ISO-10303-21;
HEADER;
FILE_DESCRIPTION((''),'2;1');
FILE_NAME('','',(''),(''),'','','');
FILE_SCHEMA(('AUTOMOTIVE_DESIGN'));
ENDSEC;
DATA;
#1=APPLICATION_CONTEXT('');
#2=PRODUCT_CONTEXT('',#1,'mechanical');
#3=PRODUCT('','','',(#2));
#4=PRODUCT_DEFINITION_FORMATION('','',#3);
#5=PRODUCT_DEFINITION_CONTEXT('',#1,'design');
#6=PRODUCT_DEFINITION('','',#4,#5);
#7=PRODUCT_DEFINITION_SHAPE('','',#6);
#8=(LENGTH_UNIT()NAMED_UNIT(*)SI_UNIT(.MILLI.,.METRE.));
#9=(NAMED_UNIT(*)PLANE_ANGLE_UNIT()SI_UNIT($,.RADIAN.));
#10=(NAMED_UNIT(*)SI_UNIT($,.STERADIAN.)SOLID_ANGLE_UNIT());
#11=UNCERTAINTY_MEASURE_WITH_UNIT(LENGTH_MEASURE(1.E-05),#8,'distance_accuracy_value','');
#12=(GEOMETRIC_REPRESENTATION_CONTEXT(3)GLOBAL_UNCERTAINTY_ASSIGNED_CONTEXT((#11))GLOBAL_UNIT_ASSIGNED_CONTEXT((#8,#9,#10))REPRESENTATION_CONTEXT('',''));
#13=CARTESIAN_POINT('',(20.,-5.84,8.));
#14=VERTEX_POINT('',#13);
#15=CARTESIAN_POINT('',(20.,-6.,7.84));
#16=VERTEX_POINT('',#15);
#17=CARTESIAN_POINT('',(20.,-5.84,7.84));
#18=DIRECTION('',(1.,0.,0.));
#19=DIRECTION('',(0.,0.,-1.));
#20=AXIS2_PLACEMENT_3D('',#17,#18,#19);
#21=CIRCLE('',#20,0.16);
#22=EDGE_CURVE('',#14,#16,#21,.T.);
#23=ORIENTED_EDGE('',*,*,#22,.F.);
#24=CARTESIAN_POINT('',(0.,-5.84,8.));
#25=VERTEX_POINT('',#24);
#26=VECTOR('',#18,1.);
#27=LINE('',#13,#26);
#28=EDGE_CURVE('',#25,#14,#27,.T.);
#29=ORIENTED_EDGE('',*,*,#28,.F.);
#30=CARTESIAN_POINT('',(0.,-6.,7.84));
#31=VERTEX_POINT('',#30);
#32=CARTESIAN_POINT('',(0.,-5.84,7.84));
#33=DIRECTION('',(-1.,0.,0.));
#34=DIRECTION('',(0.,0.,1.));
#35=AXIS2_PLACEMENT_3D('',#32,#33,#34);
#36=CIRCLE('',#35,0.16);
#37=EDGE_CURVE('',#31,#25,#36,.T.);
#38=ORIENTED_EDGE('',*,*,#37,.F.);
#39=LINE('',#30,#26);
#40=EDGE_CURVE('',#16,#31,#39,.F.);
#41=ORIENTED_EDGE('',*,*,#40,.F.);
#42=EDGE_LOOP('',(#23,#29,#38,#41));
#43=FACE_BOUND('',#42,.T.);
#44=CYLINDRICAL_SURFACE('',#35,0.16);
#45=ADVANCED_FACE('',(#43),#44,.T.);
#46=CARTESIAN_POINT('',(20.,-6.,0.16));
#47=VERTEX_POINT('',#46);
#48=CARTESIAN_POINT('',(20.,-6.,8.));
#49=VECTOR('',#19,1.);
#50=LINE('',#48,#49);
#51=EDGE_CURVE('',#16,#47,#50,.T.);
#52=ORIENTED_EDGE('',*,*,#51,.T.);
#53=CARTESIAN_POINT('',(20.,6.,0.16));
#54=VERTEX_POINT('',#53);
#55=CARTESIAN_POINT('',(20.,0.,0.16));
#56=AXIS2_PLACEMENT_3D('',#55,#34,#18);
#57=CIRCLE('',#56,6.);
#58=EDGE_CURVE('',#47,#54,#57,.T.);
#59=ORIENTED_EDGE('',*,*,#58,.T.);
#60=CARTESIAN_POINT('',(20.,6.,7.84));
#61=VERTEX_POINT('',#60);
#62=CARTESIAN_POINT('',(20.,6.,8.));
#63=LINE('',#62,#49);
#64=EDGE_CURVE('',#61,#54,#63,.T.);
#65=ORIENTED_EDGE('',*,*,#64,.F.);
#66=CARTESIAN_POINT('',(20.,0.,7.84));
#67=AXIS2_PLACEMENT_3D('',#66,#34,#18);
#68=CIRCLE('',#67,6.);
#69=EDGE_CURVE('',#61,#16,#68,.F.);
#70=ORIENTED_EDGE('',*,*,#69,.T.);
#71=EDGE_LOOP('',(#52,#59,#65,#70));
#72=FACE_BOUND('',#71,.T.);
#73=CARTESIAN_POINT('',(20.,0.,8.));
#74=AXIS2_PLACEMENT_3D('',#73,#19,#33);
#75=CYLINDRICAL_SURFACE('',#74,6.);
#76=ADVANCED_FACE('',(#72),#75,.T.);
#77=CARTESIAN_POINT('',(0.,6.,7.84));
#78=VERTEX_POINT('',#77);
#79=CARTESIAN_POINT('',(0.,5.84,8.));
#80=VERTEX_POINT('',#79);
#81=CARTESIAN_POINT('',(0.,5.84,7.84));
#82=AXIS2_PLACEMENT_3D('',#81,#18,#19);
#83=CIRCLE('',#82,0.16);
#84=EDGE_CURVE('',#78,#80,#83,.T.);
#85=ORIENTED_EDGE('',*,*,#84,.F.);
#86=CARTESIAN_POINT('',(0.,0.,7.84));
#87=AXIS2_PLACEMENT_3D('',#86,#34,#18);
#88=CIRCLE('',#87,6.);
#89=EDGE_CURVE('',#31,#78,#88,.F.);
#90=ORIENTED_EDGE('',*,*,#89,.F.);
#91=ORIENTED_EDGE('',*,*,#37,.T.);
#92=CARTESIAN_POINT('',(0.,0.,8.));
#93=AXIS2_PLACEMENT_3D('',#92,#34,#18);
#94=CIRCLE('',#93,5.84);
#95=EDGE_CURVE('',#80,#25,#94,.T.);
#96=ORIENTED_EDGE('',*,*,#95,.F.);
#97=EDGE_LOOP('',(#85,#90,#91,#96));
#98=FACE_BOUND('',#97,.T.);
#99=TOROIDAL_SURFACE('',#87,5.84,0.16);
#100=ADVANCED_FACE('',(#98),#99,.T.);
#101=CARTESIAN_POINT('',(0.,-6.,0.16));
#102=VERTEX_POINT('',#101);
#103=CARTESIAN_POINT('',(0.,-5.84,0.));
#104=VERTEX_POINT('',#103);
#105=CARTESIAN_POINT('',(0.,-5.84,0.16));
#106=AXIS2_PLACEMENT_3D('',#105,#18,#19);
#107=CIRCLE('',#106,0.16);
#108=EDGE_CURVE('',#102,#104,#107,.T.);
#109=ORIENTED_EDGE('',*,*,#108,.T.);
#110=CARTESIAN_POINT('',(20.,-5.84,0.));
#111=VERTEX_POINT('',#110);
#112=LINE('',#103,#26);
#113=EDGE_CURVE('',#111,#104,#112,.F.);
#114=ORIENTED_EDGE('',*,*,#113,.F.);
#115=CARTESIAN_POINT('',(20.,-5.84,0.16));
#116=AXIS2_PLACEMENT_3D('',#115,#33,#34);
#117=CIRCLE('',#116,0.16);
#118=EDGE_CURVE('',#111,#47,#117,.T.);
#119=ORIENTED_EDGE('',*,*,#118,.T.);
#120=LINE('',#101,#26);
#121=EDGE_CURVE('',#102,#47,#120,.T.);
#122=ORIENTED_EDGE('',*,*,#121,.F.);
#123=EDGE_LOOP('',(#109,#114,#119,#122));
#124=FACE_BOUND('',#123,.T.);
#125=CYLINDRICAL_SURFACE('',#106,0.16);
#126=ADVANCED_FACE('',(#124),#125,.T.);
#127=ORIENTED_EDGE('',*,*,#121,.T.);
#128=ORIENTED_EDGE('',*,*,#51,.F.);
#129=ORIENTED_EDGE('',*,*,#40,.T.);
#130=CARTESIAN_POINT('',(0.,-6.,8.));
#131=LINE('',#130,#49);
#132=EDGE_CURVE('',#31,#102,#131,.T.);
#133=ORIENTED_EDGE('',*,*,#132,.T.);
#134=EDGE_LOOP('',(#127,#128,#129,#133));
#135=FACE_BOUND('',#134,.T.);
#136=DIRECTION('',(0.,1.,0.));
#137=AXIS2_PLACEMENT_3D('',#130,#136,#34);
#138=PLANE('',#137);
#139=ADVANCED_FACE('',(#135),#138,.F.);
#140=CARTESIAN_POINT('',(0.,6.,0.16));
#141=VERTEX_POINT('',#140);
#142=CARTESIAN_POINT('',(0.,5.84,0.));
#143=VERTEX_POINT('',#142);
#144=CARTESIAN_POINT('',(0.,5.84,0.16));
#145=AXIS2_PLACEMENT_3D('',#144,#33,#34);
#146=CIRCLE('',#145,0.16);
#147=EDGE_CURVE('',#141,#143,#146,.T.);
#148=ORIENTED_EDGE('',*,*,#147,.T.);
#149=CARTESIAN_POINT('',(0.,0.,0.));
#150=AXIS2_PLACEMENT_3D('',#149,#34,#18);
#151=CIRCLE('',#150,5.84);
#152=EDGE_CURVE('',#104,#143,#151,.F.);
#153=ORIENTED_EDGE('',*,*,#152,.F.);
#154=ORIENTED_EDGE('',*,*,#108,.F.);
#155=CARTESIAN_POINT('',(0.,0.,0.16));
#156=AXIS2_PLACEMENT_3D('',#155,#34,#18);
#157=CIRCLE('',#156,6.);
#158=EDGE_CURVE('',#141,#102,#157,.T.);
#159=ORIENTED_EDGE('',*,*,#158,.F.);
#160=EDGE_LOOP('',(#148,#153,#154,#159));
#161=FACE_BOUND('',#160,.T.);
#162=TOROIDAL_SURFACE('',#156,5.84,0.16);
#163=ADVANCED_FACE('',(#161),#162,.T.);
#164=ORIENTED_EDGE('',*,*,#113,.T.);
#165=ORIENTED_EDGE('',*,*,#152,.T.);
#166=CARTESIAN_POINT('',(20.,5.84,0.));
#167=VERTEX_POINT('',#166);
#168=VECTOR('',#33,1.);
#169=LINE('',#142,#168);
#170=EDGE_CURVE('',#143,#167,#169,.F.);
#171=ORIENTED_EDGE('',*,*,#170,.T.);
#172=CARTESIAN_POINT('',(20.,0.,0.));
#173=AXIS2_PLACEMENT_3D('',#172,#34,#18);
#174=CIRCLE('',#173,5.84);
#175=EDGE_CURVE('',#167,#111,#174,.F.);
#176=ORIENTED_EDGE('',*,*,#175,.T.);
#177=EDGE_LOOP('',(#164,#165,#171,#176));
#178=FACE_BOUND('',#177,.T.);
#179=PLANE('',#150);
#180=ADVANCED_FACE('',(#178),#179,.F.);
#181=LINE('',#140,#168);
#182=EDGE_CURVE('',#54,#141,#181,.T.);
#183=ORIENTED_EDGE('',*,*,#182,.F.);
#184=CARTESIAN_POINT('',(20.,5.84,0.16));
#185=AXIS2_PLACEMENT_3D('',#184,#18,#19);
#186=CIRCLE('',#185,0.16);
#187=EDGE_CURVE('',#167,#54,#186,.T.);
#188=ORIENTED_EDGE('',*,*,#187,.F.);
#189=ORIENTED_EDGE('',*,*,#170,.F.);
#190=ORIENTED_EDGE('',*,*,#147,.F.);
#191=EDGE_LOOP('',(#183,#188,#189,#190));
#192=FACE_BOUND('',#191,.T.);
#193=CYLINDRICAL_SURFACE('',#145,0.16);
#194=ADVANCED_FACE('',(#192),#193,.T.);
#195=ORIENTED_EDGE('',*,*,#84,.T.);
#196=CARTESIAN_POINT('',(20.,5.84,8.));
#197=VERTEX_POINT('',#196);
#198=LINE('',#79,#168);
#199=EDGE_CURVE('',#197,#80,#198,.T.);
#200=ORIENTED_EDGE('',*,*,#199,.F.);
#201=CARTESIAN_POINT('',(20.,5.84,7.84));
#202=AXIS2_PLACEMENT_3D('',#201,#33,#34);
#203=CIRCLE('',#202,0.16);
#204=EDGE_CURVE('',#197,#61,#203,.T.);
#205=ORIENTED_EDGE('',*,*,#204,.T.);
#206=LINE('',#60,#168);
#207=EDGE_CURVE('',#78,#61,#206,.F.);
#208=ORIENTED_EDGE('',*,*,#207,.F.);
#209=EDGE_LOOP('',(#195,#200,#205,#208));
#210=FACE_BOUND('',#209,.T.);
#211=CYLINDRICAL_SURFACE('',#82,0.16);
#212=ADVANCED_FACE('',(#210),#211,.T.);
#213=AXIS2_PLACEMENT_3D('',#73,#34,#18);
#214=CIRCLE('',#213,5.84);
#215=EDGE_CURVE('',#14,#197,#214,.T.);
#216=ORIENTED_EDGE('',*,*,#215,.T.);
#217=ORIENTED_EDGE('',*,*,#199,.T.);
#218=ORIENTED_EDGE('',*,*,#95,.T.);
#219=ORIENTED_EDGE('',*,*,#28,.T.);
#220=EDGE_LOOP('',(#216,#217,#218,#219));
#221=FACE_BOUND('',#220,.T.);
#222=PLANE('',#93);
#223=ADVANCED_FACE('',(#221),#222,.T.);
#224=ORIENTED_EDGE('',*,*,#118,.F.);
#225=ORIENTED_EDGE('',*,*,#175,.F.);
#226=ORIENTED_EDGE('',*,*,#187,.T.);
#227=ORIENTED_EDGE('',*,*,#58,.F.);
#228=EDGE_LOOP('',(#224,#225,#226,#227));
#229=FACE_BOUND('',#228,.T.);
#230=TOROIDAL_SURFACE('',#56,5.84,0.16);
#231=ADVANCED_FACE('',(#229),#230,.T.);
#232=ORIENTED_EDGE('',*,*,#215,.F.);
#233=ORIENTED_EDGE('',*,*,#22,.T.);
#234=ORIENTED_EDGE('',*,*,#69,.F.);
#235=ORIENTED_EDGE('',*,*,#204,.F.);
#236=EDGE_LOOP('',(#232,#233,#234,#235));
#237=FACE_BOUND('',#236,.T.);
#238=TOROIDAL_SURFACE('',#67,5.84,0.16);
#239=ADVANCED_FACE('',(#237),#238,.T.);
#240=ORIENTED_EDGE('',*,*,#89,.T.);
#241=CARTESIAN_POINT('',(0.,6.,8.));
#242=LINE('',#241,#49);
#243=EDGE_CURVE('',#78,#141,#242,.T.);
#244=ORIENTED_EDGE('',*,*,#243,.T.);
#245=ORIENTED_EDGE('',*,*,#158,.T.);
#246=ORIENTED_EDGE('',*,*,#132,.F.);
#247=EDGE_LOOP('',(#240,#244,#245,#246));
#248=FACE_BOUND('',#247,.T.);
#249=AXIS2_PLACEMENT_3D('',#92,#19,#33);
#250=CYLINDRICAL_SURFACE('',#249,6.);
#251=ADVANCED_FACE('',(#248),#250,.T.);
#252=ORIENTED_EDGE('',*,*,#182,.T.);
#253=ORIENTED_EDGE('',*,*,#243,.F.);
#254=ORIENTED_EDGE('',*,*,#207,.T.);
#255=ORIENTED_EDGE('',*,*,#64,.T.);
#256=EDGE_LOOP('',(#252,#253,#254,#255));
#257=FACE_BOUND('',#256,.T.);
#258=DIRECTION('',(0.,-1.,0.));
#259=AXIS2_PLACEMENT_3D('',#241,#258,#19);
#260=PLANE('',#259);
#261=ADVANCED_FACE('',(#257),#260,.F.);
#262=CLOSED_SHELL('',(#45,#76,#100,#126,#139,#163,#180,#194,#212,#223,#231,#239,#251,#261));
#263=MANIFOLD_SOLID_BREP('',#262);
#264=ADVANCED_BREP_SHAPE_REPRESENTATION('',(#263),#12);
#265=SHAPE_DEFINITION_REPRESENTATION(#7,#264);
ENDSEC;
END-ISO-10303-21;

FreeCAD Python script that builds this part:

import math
import FreeCAD as App
import Part
import Sketcher
Q = App.Units.Quantity


def edges_at(feature, points):
    """Names of the edges that pass closest to the given points."""
    edges = feature.Shape.Edges
    near = lambda p: min(range(len(edges)), key=lambda i: edges[i].distToShape(Part.Vertex(*p))[0])
    return sorted({f"Edge{near(p) + 1}" for p in points})

doc = App.newDocument("Part")
body = doc.addObject("PartDesign::Body", "Body")

sketch1 = body.newObject("Sketcher::SketchObject", "Sketch")
sketch1.AttachmentSupport = (doc.getObject("XY_Plane"), [""])
sketch1.MapMode = "FlatFace"
sketch1.addGeometry([
    Part.LineSegment(App.Vector(20, 6, 0), App.Vector(0, 6, 0)),
    Part.ArcOfCircle(Part.Circle(App.Vector(0, 0, 0), App.Vector(0, 0, 1), 6), math.radians(90), math.radians(270)),
    Part.LineSegment(App.Vector(0, -6, 0), App.Vector(20, -6, 0)),
    Part.ArcOfCircle(Part.Circle(App.Vector(20, 0, 0), App.Vector(0, 0, 1), 6), math.radians(-90), math.radians(90)),
], False)
sketch1.addConstraint([
    Sketcher.Constraint("Tangent", 0, 2, 1, 1),
    Sketcher.Constraint("Tangent", 1, 2, 2, 1),
    Sketcher.Constraint("Tangent", 2, 2, 3, 1),
    Sketcher.Constraint("Tangent", 3, 2, 0, 1),
    Sketcher.Constraint("Horizontal", 0),
    Sketcher.Constraint("Horizontal", 2),
    Sketcher.Constraint("Coincident", 1, 3, -1, 1),
    Sketcher.Constraint("Radius", 1, Q("6 mm")),
    Sketcher.Constraint("DistanceX", 0, 2, 0, 1, Q("20 mm")),
])
pad1 = body.newObject("PartDesign::Pad", "Pad")
pad1.Profile = sketch1
pad1.Length = 8
doc.recompute()

fillet = body.newObject("PartDesign::Fillet", "Fillet")
fillet.Base = (pad1, edges_at(pad1, [
    (26, 0, 8),
    (10, 6, 8),
    (-6, 0, 8),
    (10, 6, 0),
    (26, 0, 0),
    (10, -6, 0),
    (-6, 0, 0),
    (10, -6, 8),
]))
fillet.Radius = 0.16

doc.recompute()
